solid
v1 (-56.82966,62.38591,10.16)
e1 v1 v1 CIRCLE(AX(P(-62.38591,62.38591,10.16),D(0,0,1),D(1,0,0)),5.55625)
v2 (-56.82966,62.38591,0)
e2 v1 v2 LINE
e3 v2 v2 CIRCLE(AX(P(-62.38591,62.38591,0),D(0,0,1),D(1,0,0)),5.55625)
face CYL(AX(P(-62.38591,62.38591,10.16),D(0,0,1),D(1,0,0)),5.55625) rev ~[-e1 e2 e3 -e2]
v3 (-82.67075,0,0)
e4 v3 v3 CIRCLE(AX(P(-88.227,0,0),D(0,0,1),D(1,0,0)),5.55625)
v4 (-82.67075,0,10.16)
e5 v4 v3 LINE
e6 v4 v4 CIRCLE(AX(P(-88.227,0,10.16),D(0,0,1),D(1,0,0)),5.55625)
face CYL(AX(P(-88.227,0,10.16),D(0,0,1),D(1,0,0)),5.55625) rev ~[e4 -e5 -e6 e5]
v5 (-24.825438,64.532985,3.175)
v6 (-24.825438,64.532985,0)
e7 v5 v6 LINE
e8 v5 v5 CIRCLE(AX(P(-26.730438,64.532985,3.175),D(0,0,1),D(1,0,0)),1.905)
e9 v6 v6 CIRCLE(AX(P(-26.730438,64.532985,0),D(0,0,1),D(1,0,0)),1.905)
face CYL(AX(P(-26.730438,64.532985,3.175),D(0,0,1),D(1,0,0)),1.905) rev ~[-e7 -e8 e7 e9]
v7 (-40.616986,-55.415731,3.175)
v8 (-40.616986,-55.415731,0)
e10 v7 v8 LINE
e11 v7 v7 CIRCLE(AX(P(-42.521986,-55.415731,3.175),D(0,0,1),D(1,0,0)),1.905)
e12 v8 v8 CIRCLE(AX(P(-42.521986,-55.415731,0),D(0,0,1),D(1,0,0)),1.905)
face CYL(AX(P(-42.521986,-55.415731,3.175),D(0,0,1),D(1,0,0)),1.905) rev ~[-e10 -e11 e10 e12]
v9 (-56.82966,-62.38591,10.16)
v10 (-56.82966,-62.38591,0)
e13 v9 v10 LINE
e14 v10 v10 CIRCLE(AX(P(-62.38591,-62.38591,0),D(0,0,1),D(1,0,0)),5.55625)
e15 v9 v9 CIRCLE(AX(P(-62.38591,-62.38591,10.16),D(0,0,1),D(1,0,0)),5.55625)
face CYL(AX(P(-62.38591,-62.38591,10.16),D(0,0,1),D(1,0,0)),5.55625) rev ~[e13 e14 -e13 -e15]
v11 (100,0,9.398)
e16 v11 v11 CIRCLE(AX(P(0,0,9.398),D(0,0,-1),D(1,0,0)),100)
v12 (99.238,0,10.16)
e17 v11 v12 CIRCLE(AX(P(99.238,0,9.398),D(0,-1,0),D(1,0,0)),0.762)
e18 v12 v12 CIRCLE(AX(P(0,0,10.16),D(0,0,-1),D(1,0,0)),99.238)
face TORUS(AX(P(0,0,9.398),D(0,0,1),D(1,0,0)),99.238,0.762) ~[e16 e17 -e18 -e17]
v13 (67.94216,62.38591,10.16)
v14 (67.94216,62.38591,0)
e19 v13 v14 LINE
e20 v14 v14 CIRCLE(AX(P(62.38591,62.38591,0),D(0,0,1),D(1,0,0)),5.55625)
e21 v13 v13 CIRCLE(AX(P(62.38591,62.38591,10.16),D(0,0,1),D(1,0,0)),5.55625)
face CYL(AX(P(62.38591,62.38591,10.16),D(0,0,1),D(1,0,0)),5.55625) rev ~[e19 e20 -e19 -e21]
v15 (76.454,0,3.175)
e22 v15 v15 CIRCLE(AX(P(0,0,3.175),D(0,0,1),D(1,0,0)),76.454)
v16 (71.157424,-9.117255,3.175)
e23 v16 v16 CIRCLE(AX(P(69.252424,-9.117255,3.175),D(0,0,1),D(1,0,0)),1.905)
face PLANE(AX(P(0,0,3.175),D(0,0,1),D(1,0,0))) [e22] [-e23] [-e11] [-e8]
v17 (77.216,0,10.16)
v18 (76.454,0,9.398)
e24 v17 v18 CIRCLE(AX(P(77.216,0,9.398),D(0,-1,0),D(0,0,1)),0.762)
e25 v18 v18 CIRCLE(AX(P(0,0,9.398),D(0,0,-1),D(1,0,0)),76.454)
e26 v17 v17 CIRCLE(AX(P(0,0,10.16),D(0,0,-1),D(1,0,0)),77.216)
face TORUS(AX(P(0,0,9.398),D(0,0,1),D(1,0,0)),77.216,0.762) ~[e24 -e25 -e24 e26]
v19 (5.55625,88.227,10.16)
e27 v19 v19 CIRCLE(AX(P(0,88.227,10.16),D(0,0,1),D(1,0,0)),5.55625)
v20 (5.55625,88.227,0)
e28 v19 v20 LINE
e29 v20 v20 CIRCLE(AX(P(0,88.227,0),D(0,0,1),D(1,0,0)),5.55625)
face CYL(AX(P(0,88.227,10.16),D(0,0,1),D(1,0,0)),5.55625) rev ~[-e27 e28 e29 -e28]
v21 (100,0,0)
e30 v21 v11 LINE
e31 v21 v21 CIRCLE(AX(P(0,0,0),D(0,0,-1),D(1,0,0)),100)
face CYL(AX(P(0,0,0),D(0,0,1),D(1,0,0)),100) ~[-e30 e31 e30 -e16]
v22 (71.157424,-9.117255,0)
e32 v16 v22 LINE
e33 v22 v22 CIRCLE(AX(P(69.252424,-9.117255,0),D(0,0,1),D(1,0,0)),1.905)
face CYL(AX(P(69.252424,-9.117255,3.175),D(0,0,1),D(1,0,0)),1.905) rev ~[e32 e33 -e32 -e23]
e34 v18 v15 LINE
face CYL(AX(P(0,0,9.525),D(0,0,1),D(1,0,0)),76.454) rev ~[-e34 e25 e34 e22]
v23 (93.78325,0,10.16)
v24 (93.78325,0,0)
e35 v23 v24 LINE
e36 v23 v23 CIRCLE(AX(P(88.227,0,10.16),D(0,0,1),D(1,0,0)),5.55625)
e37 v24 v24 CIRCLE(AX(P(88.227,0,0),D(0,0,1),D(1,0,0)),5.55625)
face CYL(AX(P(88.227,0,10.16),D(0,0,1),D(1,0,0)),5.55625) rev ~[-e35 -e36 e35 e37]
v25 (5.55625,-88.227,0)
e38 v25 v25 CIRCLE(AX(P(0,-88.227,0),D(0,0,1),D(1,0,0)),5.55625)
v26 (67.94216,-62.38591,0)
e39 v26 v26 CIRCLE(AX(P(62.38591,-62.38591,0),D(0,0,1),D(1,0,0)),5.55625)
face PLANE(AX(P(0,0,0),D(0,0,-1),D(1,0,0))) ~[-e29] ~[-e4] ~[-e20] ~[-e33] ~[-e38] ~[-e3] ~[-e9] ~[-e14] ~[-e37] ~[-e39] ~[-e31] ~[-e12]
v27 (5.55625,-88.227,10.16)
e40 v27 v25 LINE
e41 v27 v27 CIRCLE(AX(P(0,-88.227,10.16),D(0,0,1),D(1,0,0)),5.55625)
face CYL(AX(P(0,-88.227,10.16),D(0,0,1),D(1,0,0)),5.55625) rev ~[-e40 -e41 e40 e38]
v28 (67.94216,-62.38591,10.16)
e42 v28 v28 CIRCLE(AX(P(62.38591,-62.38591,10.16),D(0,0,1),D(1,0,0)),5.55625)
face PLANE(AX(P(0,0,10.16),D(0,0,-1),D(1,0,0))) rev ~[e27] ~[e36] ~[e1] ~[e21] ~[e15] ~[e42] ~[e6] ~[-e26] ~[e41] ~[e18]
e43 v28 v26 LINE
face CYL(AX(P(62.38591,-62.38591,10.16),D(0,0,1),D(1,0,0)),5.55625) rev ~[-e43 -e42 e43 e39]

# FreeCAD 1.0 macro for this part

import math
import FreeCAD as App
import Part
import Sketcher

V = App.Vector
Q = App.Units.Quantity

doc = App.newDocument("Part")
body = doc.addObject("PartDesign::Body", "Body")

sketch1 = body.newObject("Sketcher::SketchObject", "Sketch")
sketch1.AttachmentSupport = (doc.getObject("XZ_Plane"), [""])
sketch1.MapMode = "FlatFace"
sketch1.addGeometry(Part.LineSegment(V(0, 9.53, 0), V(0, 0, 0)), False)
sketch1.addGeometry(Part.LineSegment(V(0, 0, 0), V(100, 0, 0)), False)
sketch1.addGeometry(Part.LineSegment(V(100, 0, 0), V(100, 9.4, 0)), False)
sketch1.addGeometry(Part.ArcOfCircle(Part.Circle(V(99.24, 9.4, 0), V(0, 0, 1), 0.76), math.radians(0), math.radians(90)), False)
sketch1.addGeometry(Part.LineSegment(V(99.24, 10.16, 0), V(77.22, 10.16, 0)), False)
sketch1.addGeometry(Part.ArcOfCircle(Part.Circle(V(77.22, 9.4, 0), V(0, 0, 1), 0.76), math.radians(90), math.radians(180)), False)
sketch1.addGeometry(Part.LineSegment(V(76.45, 9.4, 0), V(76.45, 9.53, 0)), False)
sketch1.addGeometry(Part.LineSegment(V(76.45, 9.53, 0), V(0, 9.53, 0)), False)
sketch1.addConstraint(Sketcher.Constraint("Coincident", 0, 2, 1, 1))
sketch1.addConstraint(Sketcher.Constraint("Coincident", 1, 2, 2, 1))
sketch1.addConstraint(Sketcher.Constraint("Tangent", 2, 2, 3, 1))
sketch1.addConstraint(Sketcher.Constraint("Tangent", 3, 2, 4, 1))
sketch1.addConstraint(Sketcher.Constraint("Tangent", 4, 2, 5, 1))
sketch1.addConstraint(Sketcher.Constraint("Tangent", 5, 2, 6, 1))
sketch1.addConstraint(Sketcher.Constraint("Coincident", 6, 2, 7, 1))
sketch1.addConstraint(Sketcher.Constraint("Coincident", 7, 2, 0, 1))
sketch1.addConstraint(Sketcher.Constraint("Vertical", 0))
sketch1.addConstraint(Sketcher.Constraint("Horizontal", 1))
sketch1.addConstraint(Sketcher.Constraint("Vertical", 2))
sketch1.addConstraint(Sketcher.Constraint("Horizontal", 4))
sketch1.addConstraint(Sketcher.Constraint("Vertical", 6))
sketch1.addConstraint(Sketcher.Constraint("Horizontal", 7))
sketch1.addConstraint(Sketcher.Constraint("Coincident", 0, 2, -1, 1))
sketch1.addConstraint(Sketcher.Constraint("Equal", 3, 5))
sketch1.addConstraint(Sketcher.Constraint("Radius", 3, Q("0.03 in")))
sketch1.addConstraint(Sketcher.Constraint("DistanceX", 7, 2, 7, 1, Q("3.01 in")))
sketch1.addConstraint(Sketcher.Constraint("DistanceY", 2, 1, 2, 2, Q("0.37 in")))
sketch1.addConstraint(Sketcher.Constraint("DistanceY", 0, 2, 0, 1, Q("0.375 in")))
sketch1.addConstraint(Sketcher.Constraint("DistanceX", 1, 1, 1, 2, 100.0))
revolution = body.newObject("PartDesign::Revolution", "Revolution")
revolution.Profile = sketch1
revolution.ReferenceAxis = (sketch1, ["V_Axis"])
revolution.Angle = 360

sketch2 = body.newObject("Sketcher::SketchObject", "Sketch001")
sketch2.AttachmentSupport = (doc.getObject("XY_Plane"), [""])
sketch2.MapMode = "FlatFace"
sketch2.AttachmentOffset = App.Placement(V(0, 0, 0.375 * 25.4), App.Rotation())
sketch2.addGeometry(Part.Circle(V(0, 0, 0), V(0, 0, 1), 76), False)
sketch2.addConstraint(Sketcher.Constraint("Coincident", 0, 3, -1, 1))
sketch2.addConstraint(Sketcher.Constraint("Diameter", 0, Q("6.02 in")))
pocket1 = body.newObject("PartDesign::Pocket", "Pocket")
pocket1.Profile = sketch2
pocket1.Length = Q("0.25 in")

sketch3 = body.newObject("Sketcher::SketchObject", "Sketch002")
sketch3.AttachmentSupport = (doc.getObject("XY_Plane"), [""])
sketch3.MapMode = "FlatFace"
sketch3.AttachmentOffset = App.Placement(V(0, 0, 0.4 * 25.4), App.Rotation())
sketch3.addGeometry(Part.Circle(V(0, 88, 0), V(0, 0, 1), 6), False)
sketch3.addGeometry(Part.Circle(V(-62, 62, 0), V(0, 0, 1), 6), False)
sketch3.addGeometry(Part.Circle(V(-88, 0, 0), V(0, 0, 1), 6), False)
sketch3.addGeometry(Part.Circle(V(-62, -62, 0), V(0, 0, 1), 6), False)
sketch3.addGeometry(Part.Circle(V(0, -88, 0), V(0, 0, 1), 6), False)
sketch3.addGeometry(Part.Circle(V(62, -62, 0), V(0, 0, 1), 6), False)
sketch3.addGeometry(Part.Circle(V(88, 0, 0), V(0, 0, 1), 6), False)
sketch3.addGeometry(Part.Circle(V(62, 62, 0), V(0, 0, 1), 6), False)
sketch3.addConstraint(Sketcher.Constraint("Equal", 0, 1))
sketch3.addConstraint(Sketcher.Constraint("Equal", 1, 2))
sketch3.addConstraint(Sketcher.Constraint("Equal", 2, 3))
sketch3.addConstraint(Sketcher.Constraint("Equal", 3, 4))
sketch3.addConstraint(Sketcher.Constraint("Equal", 4, 5))
sketch3.addConstraint(Sketcher.Constraint("Equal", 5, 6))
sketch3.addConstraint(Sketcher.Constraint("Equal", 6, 7))
sketch3.addConstraint(Sketcher.Constraint("Symmetric", 0, 3, 4, 3, -1, 1))
sketch3.addConstraint(Sketcher.Constraint("Symmetric", 1, 3, 5, 3, -1, 1))
sketch3.addConstraint(Sketcher.Constraint("Symmetric", 2, 3, 6, 3, -1, 1))
sketch3.addConstraint(Sketcher.Constraint("Symmetric", 3, 3, 7, 3, -1, 1))
sketch3.addConstraint(Sketcher.Constraint("Symmetric", 3, 3, 5, 3, -2))
sketch3.addConstraint(Sketcher.Constraint("PointOnObject", 0, 3, -2))
sketch3.addConstraint(Sketcher.Constraint("PointOnObject", 2, 3, -1))
sketch3.addConstraint(Sketcher.Constraint("Diameter", 0, Q("0.4375 in")))
sketch3.addConstraint(Sketcher.Constraint("DistanceY", -1, 1, 0, 3, 88.227))
sketch3.addConstraint(Sketcher.Constraint("DistanceX", 2, 3, -1, 1, 88.227))
sketch3.addConstraint(Sketcher.Constraint("DistanceX", 1, 3, -1, 1, 62.38591))
sketch3.addConstraint(Sketcher.Constraint("DistanceY", -1, 1, 1, 3, 62.38591))
pocket2 = body.newObject("PartDesign::Pocket", "Pocket001")
pocket2.Profile = sketch3
pocket2.Type = "ThroughAll"

sketch4 = body.newObject("Sketcher::SketchObject", "Sketch003")
sketch4.AttachmentSupport = (doc.getObject("XY_Plane"), [""])
sketch4.MapMode = "FlatFace"
sketch4.AttachmentOffset = App.Placement(V(0, 0, 0.125 * 25.4), App.Rotation())
sketch4.addGeometry(Part.Circle(V(-26.7, 64.5, 0), V(0, 0, 1), 1.9), False)
sketch4.addGeometry(Part.Circle(V(-42.5, -55.4, 0), V(0, 0, 1), 1.9), False)
sketch4.addGeometry(Part.Circle(V(69.3, -9.1, 0), V(0, 0, 1), 1.9), False)
sketch4.addConstraint(Sketcher.Constraint("Equal", 0, 1))
sketch4.addConstraint(Sketcher.Constraint("Equal", 1, 2))
sketch4.addConstraint(Sketcher.Constraint("Diameter", 0, Q("0.15 in")))
sketch4.addConstraint(Sketcher.Constraint("DistanceY", 1, 3, -1, 1, 55.415731))
sketch4.addConstraint(Sketcher.Constraint("DistanceX", 1, 3, 0, 3, 15.791548))
sketch4.addConstraint(Sketcher.Constraint("DistanceX", 1, 3, 2, 3, 111.774409))
sketch4.addConstraint(Sketcher.Constraint("DistanceY", 2, 3, 0, 3, 73.65024))
sketch4.addConstraint(Sketcher.Constraint("DistanceX", 0, 3, -1, 1, 26.730438))
sketch4.addConstraint(Sketcher.Constraint("DistanceY", -1, 1, 0, 3, 64.532985))
pocket3 = body.newObject("PartDesign::Pocket", "Pocket002")
pocket3.Profile = sketch4
pocket3.Type = "ThroughAll"

doc.recompute()
